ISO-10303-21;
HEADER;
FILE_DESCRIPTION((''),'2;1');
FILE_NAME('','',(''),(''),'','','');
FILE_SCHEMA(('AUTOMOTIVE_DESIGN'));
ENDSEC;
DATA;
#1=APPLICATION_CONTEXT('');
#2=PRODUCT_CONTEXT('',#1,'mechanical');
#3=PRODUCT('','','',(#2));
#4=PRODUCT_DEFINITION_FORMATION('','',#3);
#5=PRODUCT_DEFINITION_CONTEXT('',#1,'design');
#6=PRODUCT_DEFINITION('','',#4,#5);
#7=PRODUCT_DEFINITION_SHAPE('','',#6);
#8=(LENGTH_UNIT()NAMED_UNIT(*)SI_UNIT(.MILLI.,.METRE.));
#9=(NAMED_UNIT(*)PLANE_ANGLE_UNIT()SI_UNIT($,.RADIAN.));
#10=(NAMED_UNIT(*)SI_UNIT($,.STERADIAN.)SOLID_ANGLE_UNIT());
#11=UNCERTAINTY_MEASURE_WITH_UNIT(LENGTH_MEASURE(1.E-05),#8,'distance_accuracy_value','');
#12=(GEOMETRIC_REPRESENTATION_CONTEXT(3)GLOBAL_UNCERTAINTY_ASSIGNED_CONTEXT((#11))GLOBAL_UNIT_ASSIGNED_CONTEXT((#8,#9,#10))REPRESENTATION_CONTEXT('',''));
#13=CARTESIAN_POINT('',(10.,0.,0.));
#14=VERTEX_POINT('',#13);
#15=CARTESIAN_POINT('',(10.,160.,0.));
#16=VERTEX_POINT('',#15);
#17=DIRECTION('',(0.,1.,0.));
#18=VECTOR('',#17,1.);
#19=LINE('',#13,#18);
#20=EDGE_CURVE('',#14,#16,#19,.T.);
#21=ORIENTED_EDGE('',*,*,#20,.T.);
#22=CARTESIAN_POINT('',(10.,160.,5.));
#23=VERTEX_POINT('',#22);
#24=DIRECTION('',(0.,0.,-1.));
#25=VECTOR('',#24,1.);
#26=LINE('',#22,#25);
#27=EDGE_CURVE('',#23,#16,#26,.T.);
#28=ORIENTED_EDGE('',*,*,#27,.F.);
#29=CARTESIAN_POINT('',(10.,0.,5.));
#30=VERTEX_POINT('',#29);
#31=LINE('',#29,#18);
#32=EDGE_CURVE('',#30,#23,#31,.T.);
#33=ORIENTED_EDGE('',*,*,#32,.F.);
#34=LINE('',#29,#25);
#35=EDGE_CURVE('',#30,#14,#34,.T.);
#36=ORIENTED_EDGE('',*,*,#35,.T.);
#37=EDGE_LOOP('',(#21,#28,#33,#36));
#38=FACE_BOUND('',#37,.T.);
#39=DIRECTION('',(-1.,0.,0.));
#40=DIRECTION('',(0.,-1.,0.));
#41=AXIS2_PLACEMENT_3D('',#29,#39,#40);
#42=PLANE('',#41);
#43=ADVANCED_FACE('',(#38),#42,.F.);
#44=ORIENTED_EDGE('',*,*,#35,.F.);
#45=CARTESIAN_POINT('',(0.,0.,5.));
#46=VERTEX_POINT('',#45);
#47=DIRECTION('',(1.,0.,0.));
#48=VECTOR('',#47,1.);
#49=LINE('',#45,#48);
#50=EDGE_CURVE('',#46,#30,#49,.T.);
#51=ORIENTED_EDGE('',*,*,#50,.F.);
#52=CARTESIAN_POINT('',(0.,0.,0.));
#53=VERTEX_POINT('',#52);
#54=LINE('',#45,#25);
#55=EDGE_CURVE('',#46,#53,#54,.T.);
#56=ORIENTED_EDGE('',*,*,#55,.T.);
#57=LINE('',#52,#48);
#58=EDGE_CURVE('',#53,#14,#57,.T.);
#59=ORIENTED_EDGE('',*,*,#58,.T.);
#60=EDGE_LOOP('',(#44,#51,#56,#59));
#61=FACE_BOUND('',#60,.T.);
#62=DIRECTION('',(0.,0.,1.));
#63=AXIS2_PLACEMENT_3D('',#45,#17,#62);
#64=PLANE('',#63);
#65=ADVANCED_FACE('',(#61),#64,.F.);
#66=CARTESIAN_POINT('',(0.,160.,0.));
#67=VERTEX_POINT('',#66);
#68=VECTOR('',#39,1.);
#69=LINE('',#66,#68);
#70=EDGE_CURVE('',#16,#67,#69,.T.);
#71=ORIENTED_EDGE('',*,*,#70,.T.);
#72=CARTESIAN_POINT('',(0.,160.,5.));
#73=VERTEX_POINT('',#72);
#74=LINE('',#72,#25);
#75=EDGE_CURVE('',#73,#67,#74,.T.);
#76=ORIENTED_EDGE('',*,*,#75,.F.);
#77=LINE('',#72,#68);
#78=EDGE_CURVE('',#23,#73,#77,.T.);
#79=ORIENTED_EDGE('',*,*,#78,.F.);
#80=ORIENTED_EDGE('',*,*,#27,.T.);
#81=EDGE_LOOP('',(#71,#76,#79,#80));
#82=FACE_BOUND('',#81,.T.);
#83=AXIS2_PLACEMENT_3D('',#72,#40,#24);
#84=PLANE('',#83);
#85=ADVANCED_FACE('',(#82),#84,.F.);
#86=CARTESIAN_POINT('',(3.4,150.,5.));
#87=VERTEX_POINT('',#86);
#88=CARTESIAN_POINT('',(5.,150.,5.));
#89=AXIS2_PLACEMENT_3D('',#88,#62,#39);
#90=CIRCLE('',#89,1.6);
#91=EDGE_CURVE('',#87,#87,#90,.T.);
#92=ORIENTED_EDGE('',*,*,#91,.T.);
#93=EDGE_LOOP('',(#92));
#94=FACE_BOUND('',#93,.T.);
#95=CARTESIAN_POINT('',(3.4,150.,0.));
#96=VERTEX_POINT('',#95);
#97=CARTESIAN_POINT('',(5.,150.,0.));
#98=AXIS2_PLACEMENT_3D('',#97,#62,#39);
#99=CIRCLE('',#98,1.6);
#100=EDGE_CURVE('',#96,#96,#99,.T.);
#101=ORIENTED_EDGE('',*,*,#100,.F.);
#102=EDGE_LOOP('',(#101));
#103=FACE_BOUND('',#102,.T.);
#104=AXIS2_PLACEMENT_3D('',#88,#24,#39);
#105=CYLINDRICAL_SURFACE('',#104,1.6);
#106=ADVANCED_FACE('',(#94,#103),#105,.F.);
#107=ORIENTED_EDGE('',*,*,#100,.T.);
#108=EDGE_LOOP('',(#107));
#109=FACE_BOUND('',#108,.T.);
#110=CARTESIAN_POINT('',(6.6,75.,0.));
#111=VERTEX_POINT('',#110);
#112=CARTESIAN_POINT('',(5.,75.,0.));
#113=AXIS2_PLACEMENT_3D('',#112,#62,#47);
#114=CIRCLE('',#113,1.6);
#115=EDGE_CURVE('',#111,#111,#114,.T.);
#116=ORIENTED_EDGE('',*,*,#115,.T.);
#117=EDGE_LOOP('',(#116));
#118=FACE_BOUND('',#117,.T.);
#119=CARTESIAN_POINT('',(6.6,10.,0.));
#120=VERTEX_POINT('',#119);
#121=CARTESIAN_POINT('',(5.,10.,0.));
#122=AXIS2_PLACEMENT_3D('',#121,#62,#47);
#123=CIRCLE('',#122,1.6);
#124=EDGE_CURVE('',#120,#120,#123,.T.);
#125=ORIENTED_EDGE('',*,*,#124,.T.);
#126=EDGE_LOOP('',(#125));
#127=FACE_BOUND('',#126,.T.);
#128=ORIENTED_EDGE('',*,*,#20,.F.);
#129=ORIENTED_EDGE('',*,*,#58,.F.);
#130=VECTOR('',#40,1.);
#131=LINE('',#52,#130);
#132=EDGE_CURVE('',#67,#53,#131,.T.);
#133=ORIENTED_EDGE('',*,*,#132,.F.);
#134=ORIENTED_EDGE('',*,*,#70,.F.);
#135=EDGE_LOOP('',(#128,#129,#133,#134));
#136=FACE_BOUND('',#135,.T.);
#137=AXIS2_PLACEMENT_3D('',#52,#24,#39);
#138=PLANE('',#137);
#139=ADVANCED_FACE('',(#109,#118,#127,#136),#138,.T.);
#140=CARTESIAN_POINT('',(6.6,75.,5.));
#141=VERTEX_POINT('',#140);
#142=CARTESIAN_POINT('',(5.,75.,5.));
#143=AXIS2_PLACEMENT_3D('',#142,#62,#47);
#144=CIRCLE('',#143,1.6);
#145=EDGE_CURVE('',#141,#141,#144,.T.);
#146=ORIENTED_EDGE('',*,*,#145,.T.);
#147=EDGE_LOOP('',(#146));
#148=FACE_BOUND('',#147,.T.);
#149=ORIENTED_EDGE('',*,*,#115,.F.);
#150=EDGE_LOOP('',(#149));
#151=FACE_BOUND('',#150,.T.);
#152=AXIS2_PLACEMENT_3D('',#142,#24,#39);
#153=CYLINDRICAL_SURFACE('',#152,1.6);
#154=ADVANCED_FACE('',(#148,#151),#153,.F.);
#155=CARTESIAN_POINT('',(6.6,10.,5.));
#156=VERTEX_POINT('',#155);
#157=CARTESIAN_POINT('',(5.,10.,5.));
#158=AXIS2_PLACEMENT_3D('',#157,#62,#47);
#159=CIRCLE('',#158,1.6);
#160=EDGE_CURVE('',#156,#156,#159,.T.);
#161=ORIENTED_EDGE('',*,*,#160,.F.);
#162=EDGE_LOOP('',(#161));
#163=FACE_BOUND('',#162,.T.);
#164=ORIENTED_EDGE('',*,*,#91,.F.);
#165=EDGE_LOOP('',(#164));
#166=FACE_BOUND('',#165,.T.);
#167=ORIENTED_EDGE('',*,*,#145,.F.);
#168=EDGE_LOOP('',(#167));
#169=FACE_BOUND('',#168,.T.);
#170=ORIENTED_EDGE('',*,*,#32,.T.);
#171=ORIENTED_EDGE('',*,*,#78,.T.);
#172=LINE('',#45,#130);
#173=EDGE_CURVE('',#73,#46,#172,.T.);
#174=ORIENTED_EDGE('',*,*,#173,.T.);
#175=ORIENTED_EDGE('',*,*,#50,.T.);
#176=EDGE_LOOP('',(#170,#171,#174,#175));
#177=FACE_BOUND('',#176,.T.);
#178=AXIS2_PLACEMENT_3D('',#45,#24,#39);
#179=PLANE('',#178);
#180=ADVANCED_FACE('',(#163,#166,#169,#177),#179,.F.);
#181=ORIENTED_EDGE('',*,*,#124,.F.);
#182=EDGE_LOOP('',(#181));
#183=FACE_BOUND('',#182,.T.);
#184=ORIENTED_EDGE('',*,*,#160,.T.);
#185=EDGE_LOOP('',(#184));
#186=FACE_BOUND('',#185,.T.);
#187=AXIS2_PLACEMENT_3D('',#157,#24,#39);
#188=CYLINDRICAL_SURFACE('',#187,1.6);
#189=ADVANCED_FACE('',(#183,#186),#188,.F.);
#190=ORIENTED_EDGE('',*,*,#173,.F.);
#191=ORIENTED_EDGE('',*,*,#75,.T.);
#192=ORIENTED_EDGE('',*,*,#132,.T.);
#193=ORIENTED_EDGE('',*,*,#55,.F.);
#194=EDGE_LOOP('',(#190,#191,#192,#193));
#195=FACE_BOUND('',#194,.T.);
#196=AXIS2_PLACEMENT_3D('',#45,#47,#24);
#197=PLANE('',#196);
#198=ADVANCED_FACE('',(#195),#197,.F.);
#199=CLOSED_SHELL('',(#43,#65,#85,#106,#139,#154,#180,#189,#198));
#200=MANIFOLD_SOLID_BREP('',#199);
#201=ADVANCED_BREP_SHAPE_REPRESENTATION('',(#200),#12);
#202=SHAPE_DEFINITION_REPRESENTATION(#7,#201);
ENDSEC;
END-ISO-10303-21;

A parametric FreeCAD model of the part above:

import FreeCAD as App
import Part
import Sketcher


def add_polygon(sketch, points):
    """Adds a closed chain of lines whose ends are joined by coincident constraints."""
    first, n = sketch.GeometryCount, len(points)
    for a, b in zip(points, points[1:] + points[:1]):
        sketch.addGeometry(Part.LineSegment(App.Vector(*a, 0), App.Vector(*b, 0)), False)
    for i in range(n):
        sketch.addConstraint(Sketcher.Constraint("Coincident", first + i, 2, first + (i + 1) % n, 1))

doc = App.newDocument("Part")
body = doc.addObject("PartDesign::Body", "Body")

sketch1 = body.newObject("Sketcher::SketchObject", "Sketch")
sketch1.AttachmentSupport = (doc.getObject("XY_Plane"), [""])
sketch1.MapMode = "FlatFace"
add_polygon(sketch1, [(0, 160), (0, 0), (10, 0), (10, 160)])
sketch1.addGeometry(Part.Circle(App.Vector(5, 10, 0), App.Vector(0, 0, 1), 1.6), False)
sketch1.addGeometry(Part.Circle(App.Vector(5, 75, 0), App.Vector(0, 0, 1), 1.6), False)
sketch1.addGeometry(Part.Circle(App.Vector(5, 150, 0), App.Vector(0, 0, 1), 1.6), False)
sketch1.addConstraint([
    Sketcher.Constraint("Vertical", 0),
    Sketcher.Constraint("Horizontal", 1),
    Sketcher.Constraint("Vertical", 2),
    Sketcher.Constraint("Horizontal", 3),
    Sketcher.Constraint("Coincident", 0, 2, -1, 1),
    Sketcher.Constraint("Equal", 4, 5),
    Sketcher.Constraint("Equal", 5, 6),
    Sketcher.Constraint("Vertical", 4, 3, 5, 3),
    Sketcher.Constraint("Vertical", 5, 3, 6, 3),
    Sketcher.Constraint("Diameter", 4, 3.2),
    Sketcher.Constraint("DistanceX", 1, 1, 1, 2, 10.0),
    Sketcher.Constraint("DistanceY", 0, 2, 0, 1, 160.0),
    Sketcher.Constraint("DistanceX", -1, 1, 4, 3, 5.0),
    Sketcher.Constraint("DistanceY", -1, 1, 4, 3, 10.0),
    Sketcher.Constraint("DistanceY", -1, 1, 5, 3, 75.0),
    Sketcher.Constraint("DistanceY", -1, 1, 6, 3, 150.0),
])
pad1 = body.newObject("PartDesign::Pad", "Pad")
pad1.Profile = sketch1
pad1.Length = 5

doc.recompute()
